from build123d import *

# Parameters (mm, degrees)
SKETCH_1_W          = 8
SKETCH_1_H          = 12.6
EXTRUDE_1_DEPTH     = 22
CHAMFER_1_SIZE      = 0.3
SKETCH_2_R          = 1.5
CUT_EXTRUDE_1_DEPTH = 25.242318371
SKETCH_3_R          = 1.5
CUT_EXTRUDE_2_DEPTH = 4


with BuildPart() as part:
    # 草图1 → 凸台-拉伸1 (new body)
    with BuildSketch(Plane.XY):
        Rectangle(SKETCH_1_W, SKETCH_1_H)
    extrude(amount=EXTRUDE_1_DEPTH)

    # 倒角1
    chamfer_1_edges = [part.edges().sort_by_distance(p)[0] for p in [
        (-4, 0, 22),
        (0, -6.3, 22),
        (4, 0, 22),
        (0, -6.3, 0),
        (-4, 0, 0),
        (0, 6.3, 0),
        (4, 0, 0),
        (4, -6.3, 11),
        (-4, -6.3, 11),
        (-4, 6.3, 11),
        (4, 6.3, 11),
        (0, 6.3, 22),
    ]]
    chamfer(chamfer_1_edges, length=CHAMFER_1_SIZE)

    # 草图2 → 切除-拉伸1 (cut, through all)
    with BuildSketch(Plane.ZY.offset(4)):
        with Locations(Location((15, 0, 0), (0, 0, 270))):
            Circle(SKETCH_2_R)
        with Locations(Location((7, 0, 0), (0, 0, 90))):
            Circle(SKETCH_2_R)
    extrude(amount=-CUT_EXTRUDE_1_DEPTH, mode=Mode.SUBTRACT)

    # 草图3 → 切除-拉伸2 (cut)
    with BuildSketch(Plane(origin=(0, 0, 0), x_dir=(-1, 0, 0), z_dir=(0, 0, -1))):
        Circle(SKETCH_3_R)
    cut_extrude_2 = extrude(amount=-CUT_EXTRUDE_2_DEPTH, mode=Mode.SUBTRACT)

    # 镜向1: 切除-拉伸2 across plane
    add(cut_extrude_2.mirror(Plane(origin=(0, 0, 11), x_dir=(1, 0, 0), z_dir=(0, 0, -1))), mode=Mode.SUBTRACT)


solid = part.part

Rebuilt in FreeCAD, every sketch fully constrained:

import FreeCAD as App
import Part
import Sketcher
from FreeCAD import Vector
Q = App.Units.Quantity

doc = App.newDocument("Part")
body = doc.addObject("PartDesign::Body", "Body")

# Sketch on XY plane
sketch1 = body.newObject("Sketcher::SketchObject", "Sketch")
sketch1.AttachmentSupport = (doc.getObject("XY_Plane"), [""])
sketch1.MapMode = "FlatFace"
sketch1.addGeometry([
    Part.LineSegment(Vector(-4, 6, 0), Vector(-4, -6, 0)),
    Part.LineSegment(Vector(-4, -6, 0), Vector(4, -6, 0)),
    Part.LineSegment(Vector(4, -6, 0), Vector(4, 6, 0)),
    Part.LineSegment(Vector(4, 6, 0), Vector(-4, 6, 0)),
], False)
sketch1.addConstraint([
    Sketcher.Constraint("Coincident", 0, 2, 1, 1),
    Sketcher.Constraint("Coincident", 1, 2, 2, 1),
    Sketcher.Constraint("Coincident", 2, 2, 3, 1),
    Sketcher.Constraint("Coincident", 3, 2, 0, 1),
    Sketcher.Constraint("Vertical", 0),
    Sketcher.Constraint("Horizontal", 1),
    Sketcher.Constraint("Vertical", 2),
    Sketcher.Constraint("Horizontal", 3),
    Sketcher.Constraint("Symmetric", 0, 2, 2, 2, -1, 1),
    Sketcher.Constraint("DistanceX", 1, 1, 1, 2, Q("8 mm")),
    Sketcher.Constraint("DistanceY", 0, 2, 0, 1, Q("12.6 mm")),
])
pad1 = body.newObject("PartDesign::Pad", "Pad")
pad1.Profile = sketch1
pad1.Length = 22
doc.recompute()

chamfer = body.newObject("PartDesign::Chamfer", "Chamfer")
chamfer.Base = (pad1, ["Edge1"])
chamfer.UseAllEdges = True
chamfer.Size = 0.3

# Sketch on YZ plane
sketch2 = body.newObject("Sketcher::SketchObject", "Sketch001")
sketch2.AttachmentSupport = (doc.getObject("YZ_Plane"), [""])
sketch2.MapMode = "FlatFace"
sketch2.AttachmentOffset = App.Placement(Vector(0, 0, -4), App.Rotation())
sketch2.addGeometry([
    Part.Circle(Vector(0, 15, 0), Vector(0, 0, 1), 1.5),
    Part.Circle(Vector(0, 7, 0), Vector(0, 0, 1), 1.5),
], False)
sketch2.addConstraint([
    Sketcher.Constraint("Equal", 0, 1),
    Sketcher.Constraint("PointOnObject", 0, 3, -2),
    Sketcher.Constraint("PointOnObject", 1, 3, -2),
    Sketcher.Constraint("Diameter", 0, Q("3 mm")),
    Sketcher.Constraint("DistanceY", -1, 1, 0, 3, Q("15 mm")),
    Sketcher.Constraint("DistanceY", -1, 1, 1, 3, Q("7 mm")),
])
pocket1 = body.newObject("PartDesign::Pocket", "Pocket")
pocket1.Profile = sketch2
pocket1.Type = "ThroughAll"
pocket1.Reversed = True

# Sketch on XY plane
sketch3 = body.newObject("Sketcher::SketchObject", "Sketch002")
sketch3.AttachmentSupport = (doc.getObject("XY_Plane"), [""])
sketch3.MapMode = "FlatFace"
sketch3.addGeometry(Part.Circle(Vector(0, 0, 0), Vector(0, 0, 1), 1.5), False)
sketch3.addConstraint([
    Sketcher.Constraint("Coincident", 0, 3, -1, 1),
    Sketcher.Constraint("Diameter", 0, Q("3 mm")),
])
pocket2 = body.newObject("PartDesign::Pocket", "Pocket001")
pocket2.Profile = sketch3
pocket2.Length = 4
pocket2.Reversed = True
doc.recompute()

datumplane = body.newObject("PartDesign::Plane", "DatumPlane")
datumplane.AttachmentSupport = (doc.getObject("XY_Plane"), [""])
datumplane.MapMode = "FlatFace"
datumplane.AttachmentOffset = App.Placement(Vector(0, 0, 11), App.Rotation())
mirrored = body.newObject("PartDesign::Mirrored", "Mirrored")
mirrored.Originals = [pocket2]
mirrored.MirrorPlane = (datumplane, [""])
body.Tip = mirrored

doc.recompute()
